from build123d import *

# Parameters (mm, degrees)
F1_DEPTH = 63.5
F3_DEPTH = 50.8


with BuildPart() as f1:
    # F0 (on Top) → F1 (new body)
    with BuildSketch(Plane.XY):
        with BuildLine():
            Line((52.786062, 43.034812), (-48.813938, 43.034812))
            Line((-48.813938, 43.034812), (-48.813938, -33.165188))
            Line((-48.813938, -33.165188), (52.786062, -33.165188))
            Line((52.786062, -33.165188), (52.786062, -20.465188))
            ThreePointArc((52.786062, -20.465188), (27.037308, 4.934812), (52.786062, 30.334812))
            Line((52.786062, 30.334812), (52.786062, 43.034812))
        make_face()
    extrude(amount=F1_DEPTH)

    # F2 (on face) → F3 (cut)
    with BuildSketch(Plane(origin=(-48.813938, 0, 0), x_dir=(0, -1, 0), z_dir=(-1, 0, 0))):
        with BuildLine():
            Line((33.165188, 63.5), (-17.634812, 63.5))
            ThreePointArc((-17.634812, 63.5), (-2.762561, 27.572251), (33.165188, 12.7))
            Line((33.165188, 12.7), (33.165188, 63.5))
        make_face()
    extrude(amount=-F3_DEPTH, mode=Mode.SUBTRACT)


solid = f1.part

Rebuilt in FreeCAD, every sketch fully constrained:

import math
import FreeCAD as App
import Part
import Sketcher
Q = App.Units.Quantity

doc = App.newDocument("Part")
body = doc.addObject("PartDesign::Body", "Body")

# Sketch on XY plane
sketch1 = body.newObject("Sketcher::SketchObject", "Sketch")
sketch1.AttachmentSupport = (doc.getObject("XY_Plane"), [""])
sketch1.MapMode = "FlatFace"
sketch1.addGeometry([
    Part.LineSegment(App.Vector(53, 43, 0), App.Vector(-49, 43, 0)),  # 0
    Part.LineSegment(App.Vector(-49, 43, 0), App.Vector(-49, -33, 0)),  # 1
    Part.LineSegment(App.Vector(-49, -33, 0), App.Vector(53, -33, 0)),  # 2
    Part.LineSegment(App.Vector(53, -33, 0), App.Vector(53, -20, 0)),  # 3
    Part.ArcOfCircle(Part.Circle(App.Vector(52, 5, 0), App.Vector(0, 0, 1), 25), math.radians(89), math.radians(271)),  # 4
    Part.LineSegment(App.Vector(53, 30, 0), App.Vector(53, 43, 0)),  # 5
], False)
sketch1.addConstraint([
    Sketcher.Constraint("Coincident", 0, 2, 1, 1),
    Sketcher.Constraint("Coincident", 1, 2, 2, 1),
    Sketcher.Constraint("Coincident", 2, 2, 3, 1),
    Sketcher.Constraint("Coincident", 3, 2, 4, 2),
    Sketcher.Constraint("Coincident", 4, 1, 5, 1),
    Sketcher.Constraint("Coincident", 5, 2, 0, 1),
    Sketcher.Constraint("Horizontal", 0),
    Sketcher.Constraint("Vertical", 1),
    Sketcher.Constraint("Horizontal", 2),
    Sketcher.Constraint("Vertical", 3),
    Sketcher.Constraint("Vertical", 5),
    Sketcher.Constraint("Vertical", 3, 2, 4, 1),
    Sketcher.Constraint("Equal", 3, 5),
    Sketcher.Constraint("DistanceX", 0, 2, 0, 1, Q("4 in")),
    Sketcher.Constraint("DistanceY", 1, 2, 1, 1, Q("3 in")),
    Sketcher.Constraint("DistanceY", 3, 1, 3, 2, Q("0.5 in")),
    Sketcher.Constraint("Radius", 4, 25.402362),
    Sketcher.Constraint("DistanceX", -1, 1, 4, 3, 52.43967),
    Sketcher.Constraint("DistanceY", 3, 2, -1, 1, 20.465188),
])
pad1 = body.newObject("PartDesign::Pad", "Pad")
pad1.Profile = sketch1
pad1.Length = Q("2.5 in")

# Sketch on YZ plane
sketch2 = body.newObject("Sketcher::SketchObject", "Sketch001")
sketch2.AttachmentSupport = (doc.getObject("YZ_Plane"), [""])
sketch2.MapMode = "FlatFace"
sketch2.AttachmentOffset = App.Placement(App.Vector(0, 0, -48.813938), App.Rotation())
sketch2.addGeometry([
    Part.LineSegment(App.Vector(-33, 64, 0), App.Vector(18, 64, 0)),
    Part.ArcOfCircle(Part.Circle(App.Vector(-33, 63, 0), App.Vector(0, 0, 1), 51), math.radians(-90), math.radians(0)),
    Part.LineSegment(App.Vector(-33, 13, 0), App.Vector(-33, 64, 0)),
], False)
sketch2.addConstraint([
    Sketcher.Constraint("Coincident", 0, 2, 1, 2),
    Sketcher.Constraint("Coincident", 1, 1, 2, 1),
    Sketcher.Constraint("Coincident", 2, 2, 0, 1),
    Sketcher.Constraint("Horizontal", 0),
    Sketcher.Constraint("Vertical", 2),
    Sketcher.Constraint("Equal", 0, 2),
    Sketcher.Constraint("DistanceX", 0, 1, 0, 2, Q("2 in")),
    Sketcher.Constraint("DistanceY", -1, 1, 0, 2, Q("2.5 in")),
    Sketcher.Constraint("Radius", 1, 50.777059),
    Sketcher.Constraint("DistanceX", 1, 3, -1, 1, 33.142242),
])
pocket1 = body.newObject("PartDesign::Pocket", "Pocket")
pocket1.Profile = sketch2
pocket1.Length = Q("2 in")
pocket1.Reversed = True

doc.recompute()
